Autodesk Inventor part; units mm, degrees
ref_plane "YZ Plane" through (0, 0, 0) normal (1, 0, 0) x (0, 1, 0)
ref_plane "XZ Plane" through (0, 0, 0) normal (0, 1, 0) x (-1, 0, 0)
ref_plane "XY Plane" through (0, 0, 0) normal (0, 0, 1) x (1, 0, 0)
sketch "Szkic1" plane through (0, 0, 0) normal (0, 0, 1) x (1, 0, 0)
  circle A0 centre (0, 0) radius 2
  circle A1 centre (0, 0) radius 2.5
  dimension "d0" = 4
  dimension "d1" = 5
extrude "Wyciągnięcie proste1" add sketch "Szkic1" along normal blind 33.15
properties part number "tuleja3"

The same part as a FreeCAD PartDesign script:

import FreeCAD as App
import Part
import Sketcher

V = App.Vector

doc = App.newDocument("Part")
body = doc.addObject("PartDesign::Body", "Body")

sketch1 = doc.addObject("Sketcher::SketchObject", "Sketch")
body.addObject(sketch1)
sketch1.AttachmentSupport = (doc.XY_Plane, [""])
sketch1.MapMode = "FlatFace"
sketch1.addGeometry([
    Part.Circle(V(0, 0, 0), V(0, 0, 1), 2.5),
    Part.Circle(V(0, 0, 0), V(0, 0, 1), 2),
], False)
sketch1.addConstraint([
    Sketcher.Constraint("Coincident", 0, 3, -1, 1),
    Sketcher.Constraint("Coincident", 1, 3, -1, 1),
    Sketcher.Constraint("Diameter", 0, 5.0),
    Sketcher.Constraint("Diameter", 1, 4.0),
])
pad1 = doc.addObject("PartDesign::Pad", "Pad")
body.addObject(pad1)
pad1.Profile = sketch1
pad1.Length = 33.15

doc.recompute()
